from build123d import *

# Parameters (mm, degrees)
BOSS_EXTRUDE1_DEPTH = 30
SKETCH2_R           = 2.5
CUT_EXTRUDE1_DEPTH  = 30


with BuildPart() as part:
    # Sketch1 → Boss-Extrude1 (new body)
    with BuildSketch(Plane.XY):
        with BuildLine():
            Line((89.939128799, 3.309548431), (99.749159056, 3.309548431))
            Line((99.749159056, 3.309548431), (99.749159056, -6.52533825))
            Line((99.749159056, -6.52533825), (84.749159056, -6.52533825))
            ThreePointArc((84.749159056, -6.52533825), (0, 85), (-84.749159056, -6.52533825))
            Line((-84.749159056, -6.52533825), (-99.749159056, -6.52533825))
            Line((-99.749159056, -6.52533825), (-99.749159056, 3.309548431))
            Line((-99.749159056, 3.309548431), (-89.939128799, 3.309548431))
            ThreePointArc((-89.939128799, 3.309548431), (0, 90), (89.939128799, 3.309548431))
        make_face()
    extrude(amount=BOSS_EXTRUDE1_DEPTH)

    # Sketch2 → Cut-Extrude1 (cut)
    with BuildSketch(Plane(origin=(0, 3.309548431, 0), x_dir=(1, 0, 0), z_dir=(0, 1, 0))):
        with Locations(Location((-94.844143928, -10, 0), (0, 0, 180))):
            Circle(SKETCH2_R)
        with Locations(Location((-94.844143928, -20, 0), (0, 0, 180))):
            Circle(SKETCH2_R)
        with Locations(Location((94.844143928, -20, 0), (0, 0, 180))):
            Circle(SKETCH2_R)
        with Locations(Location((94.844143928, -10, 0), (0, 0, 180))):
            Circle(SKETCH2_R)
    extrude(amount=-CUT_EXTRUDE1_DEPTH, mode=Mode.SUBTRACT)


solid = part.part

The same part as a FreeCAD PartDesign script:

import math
import FreeCAD as App
import Part
import Sketcher

V = App.Vector
Q = App.Units.Quantity

doc = App.newDocument("Part")
body = doc.addObject("PartDesign::Body", "Body")

sketch1 = body.newObject("Sketcher::SketchObject", "Sketch")
sketch1.AttachmentSupport = (doc.getObject("XY_Plane"), [""])
sketch1.MapMode = "FlatFace"
sketch1.addGeometry([
    Part.LineSegment(V(100, 3, 0), V(90, 3, 0)),
    Part.ArcOfCircle(Part.Circle(V(0, 0, 0), V(0, 0, 1), 90), math.radians(2), math.radians(178)),
    Part.LineSegment(V(-90, 3, 0), V(-100, 3, 0)),
    Part.LineSegment(V(-100, 3, 0), V(-100, -7, 0)),
    Part.LineSegment(V(-100, -7, 0), V(-85, -7, 0)),
    Part.ArcOfCircle(Part.Circle(V(0, 0, 0), V(0, 0, 1), 85), math.radians(-4), math.radians(184)),
    Part.LineSegment(V(85, -7, 0), V(100, -7, 0)),
    Part.LineSegment(V(100, -7, 0), V(100, 3, 0)),
], False)
sketch1.addConstraint([
    Sketcher.Constraint("Coincident", 0, 2, 1, 1),
    Sketcher.Constraint("Coincident", 1, 2, 2, 1),
    Sketcher.Constraint("Coincident", 2, 2, 3, 1),
    Sketcher.Constraint("Coincident", 3, 2, 4, 1),
    Sketcher.Constraint("Coincident", 4, 2, 5, 2),
    Sketcher.Constraint("Coincident", 5, 1, 6, 1),
    Sketcher.Constraint("Coincident", 6, 2, 7, 1),
    Sketcher.Constraint("Coincident", 7, 2, 0, 1),
    Sketcher.Constraint("Horizontal", 0),
    Sketcher.Constraint("Horizontal", 2),
    Sketcher.Constraint("Vertical", 3),
    Sketcher.Constraint("Horizontal", 4),
    Sketcher.Constraint("Horizontal", 6),
    Sketcher.Constraint("Vertical", 7),
    Sketcher.Constraint("Coincident", 1, 3, -1, 1),
    Sketcher.Constraint("Coincident", 5, 3, -1, 1),
    Sketcher.Constraint("Symmetric", 3, 2, 6, 2, -2),
    Sketcher.Constraint("Horizontal", 0, 2, 1, 2),
    Sketcher.Constraint("Radius", 1, Q("90 mm")),
    Sketcher.Constraint("Radius", 5, Q("85 mm")),
    Sketcher.Constraint("DistanceX", 4, 1, 4, 2, Q("15 mm")),
    Sketcher.Constraint("DistanceX", 0, 2, 0, 1, Q("9.81003 mm")),
    Sketcher.Constraint("DistanceY", 3, 2, 3, 1, Q("9.834887 mm")),
])
pad1 = body.newObject("PartDesign::Pad", "Pad")
pad1.Profile = sketch1
pad1.Length = 30

sketch2 = body.newObject("Sketcher::SketchObject", "Sketch001")
sketch2.AttachmentSupport = (doc.getObject("XZ_Plane"), [""])
sketch2.MapMode = "FlatFace"
sketch2.AttachmentOffset = App.Placement(V(0, 0, -3.309548), App.Rotation())
sketch2.addGeometry([
    Part.Circle(V(-94.8, 10, 0), V(0, 0, 1), 2.5),
    Part.Circle(V(-94.8, 20, 0), V(0, 0, 1), 2.5),
    Part.Circle(V(94.8, 20, 0), V(0, 0, 1), 2.5),
    Part.Circle(V(94.8, 10, 0), V(0, 0, 1), 2.5),
], False)
sketch2.addConstraint([
    Sketcher.Constraint("Equal", 0, 1),
    Sketcher.Constraint("Equal", 1, 2),
    Sketcher.Constraint("Equal", 2, 3),
    Sketcher.Constraint("Symmetric", 1, 3, 2, 3, -2),
    Sketcher.Constraint("Symmetric", 0, 3, 3, 3, -2),
    Sketcher.Constraint("Vertical", 0, 3, 1, 3),
    Sketcher.Constraint("Diameter", 0, Q("5 mm")),
    Sketcher.Constraint("DistanceY", -1, 1, 0, 3, Q("10 mm")),
    Sketcher.Constraint("DistanceY", -1, 1, 1, 3, Q("20 mm")),
    Sketcher.Constraint("DistanceX", 0, 3, -1, 1, Q("94.844144 mm")),
])
pocket1 = body.newObject("PartDesign::Pocket", "Pocket")
pocket1.Profile = sketch2
pocket1.Length = 30
pocket1.Reversed = True

doc.recompute()
